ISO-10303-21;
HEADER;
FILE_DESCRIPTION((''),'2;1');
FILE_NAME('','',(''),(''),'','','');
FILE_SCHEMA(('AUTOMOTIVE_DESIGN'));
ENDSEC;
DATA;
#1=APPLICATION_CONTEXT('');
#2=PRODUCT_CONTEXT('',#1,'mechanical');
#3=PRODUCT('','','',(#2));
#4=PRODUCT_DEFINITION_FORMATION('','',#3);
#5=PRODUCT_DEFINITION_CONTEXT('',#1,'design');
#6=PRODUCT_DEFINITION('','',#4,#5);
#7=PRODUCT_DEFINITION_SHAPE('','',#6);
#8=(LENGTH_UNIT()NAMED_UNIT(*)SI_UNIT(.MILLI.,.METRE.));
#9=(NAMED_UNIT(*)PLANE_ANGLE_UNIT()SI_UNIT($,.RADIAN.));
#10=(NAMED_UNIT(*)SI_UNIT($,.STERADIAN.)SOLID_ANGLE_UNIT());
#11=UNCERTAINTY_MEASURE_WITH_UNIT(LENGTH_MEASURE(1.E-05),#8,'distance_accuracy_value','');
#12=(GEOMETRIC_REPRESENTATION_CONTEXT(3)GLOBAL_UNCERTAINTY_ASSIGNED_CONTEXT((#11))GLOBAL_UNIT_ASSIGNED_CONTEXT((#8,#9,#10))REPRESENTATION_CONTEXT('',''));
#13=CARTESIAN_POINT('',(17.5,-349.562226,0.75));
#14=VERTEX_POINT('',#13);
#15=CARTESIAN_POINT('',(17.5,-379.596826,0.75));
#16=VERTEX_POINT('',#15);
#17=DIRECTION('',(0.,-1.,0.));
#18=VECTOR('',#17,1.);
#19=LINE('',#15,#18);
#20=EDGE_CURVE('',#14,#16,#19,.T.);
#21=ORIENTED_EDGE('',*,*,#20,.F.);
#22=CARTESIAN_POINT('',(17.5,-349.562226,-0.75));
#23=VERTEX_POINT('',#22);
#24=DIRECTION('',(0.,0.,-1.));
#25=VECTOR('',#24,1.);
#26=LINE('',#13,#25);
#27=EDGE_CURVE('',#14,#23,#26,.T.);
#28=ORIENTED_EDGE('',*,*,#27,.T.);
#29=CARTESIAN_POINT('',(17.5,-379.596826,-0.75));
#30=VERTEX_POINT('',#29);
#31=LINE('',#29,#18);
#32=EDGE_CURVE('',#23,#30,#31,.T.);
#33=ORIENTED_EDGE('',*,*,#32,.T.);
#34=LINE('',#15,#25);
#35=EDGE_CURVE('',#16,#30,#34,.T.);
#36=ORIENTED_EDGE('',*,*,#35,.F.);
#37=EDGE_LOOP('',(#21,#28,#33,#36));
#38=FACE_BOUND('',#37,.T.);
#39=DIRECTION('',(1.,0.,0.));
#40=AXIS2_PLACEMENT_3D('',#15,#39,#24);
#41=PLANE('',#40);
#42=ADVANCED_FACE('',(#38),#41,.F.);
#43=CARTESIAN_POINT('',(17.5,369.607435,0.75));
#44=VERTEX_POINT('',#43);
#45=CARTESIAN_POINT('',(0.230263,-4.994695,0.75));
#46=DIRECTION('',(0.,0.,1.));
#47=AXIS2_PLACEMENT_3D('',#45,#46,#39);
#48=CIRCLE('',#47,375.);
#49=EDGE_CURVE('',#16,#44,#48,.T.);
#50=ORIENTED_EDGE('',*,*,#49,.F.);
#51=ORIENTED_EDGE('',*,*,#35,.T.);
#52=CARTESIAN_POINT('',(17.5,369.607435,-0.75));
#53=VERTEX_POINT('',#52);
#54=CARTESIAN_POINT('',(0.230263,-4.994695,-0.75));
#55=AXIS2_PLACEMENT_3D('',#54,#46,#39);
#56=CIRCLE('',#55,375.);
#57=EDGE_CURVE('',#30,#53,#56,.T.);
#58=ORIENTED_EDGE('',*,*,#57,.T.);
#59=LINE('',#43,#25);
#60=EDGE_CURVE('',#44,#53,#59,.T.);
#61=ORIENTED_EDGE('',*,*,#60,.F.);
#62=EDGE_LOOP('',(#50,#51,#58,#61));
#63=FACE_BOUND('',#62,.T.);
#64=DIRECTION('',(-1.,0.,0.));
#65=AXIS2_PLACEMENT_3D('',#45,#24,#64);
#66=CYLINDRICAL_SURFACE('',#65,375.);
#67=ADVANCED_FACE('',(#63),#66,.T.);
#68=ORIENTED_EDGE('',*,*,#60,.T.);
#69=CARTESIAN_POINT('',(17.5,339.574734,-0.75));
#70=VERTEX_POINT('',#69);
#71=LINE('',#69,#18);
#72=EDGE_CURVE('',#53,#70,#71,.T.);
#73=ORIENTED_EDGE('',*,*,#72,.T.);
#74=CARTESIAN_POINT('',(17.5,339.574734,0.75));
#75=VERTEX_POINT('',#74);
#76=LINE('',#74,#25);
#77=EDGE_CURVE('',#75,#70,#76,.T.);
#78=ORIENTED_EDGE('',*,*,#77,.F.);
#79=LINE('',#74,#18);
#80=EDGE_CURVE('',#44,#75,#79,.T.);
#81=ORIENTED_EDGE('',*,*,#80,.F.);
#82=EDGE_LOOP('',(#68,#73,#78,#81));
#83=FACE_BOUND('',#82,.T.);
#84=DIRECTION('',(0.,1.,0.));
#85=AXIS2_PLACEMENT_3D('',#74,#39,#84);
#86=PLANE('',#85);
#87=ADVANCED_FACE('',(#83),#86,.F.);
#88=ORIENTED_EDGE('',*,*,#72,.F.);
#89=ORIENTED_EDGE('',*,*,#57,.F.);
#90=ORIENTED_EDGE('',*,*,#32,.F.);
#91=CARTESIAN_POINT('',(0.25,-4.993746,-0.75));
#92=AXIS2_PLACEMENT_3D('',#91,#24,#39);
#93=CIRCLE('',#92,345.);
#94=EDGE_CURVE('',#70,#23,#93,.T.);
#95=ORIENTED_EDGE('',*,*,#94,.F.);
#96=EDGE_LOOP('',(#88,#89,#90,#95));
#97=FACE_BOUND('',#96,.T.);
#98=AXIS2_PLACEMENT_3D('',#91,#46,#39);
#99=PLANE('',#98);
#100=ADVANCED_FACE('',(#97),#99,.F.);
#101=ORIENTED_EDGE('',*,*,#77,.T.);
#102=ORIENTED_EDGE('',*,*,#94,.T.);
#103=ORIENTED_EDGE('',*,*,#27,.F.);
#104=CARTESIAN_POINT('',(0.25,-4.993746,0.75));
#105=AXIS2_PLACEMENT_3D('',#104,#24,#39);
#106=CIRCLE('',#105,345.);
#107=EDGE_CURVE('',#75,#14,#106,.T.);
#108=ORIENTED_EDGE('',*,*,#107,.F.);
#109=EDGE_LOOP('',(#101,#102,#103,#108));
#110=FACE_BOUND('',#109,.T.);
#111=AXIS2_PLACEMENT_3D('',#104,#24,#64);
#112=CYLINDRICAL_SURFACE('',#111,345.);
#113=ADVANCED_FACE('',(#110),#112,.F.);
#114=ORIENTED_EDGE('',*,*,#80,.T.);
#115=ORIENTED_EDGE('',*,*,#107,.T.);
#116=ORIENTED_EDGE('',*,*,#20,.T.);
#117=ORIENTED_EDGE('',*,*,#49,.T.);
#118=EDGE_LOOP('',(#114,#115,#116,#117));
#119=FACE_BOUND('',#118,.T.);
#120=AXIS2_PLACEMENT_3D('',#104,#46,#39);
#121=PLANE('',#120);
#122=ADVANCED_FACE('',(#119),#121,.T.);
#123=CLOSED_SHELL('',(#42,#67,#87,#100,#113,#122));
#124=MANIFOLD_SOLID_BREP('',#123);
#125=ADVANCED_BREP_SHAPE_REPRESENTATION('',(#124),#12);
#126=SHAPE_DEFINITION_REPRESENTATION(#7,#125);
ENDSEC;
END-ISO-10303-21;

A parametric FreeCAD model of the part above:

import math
import FreeCAD as App
import Part
import Sketcher

V = App.Vector
Q = App.Units.Quantity

doc = App.newDocument("Part")
body = doc.addObject("PartDesign::Body", "Body")

sketch1 = body.newObject("Sketcher::SketchObject", "Sketch")
sketch1.AttachmentSupport = (doc.getObject("XY_Plane"), [""])
sketch1.MapMode = "FlatFace"
sketch1.addGeometry(Part.LineSegment(V(18, 370, 0), V(18, 340, 0)), False)
sketch1.addGeometry(Part.ArcOfCircle(Part.Circle(V(0, -5, 0), V(0, 0, 1), 345), math.radians(-87), math.radians(87)), False)
sketch1.addGeometry(Part.LineSegment(V(18, -350, 0), V(18, -380, 0)), False)
sketch1.addGeometry(Part.ArcOfCircle(Part.Circle(V(0, -5, 0), V(0, 0, 1), 375), math.radians(-87), math.radians(87)), False)
sketch1.addConstraint(Sketcher.Constraint("Coincident", 0, 2, 1, 2))
sketch1.addConstraint(Sketcher.Constraint("Coincident", 1, 1, 2, 1))
sketch1.addConstraint(Sketcher.Constraint("Coincident", 2, 2, 3, 1))
sketch1.addConstraint(Sketcher.Constraint("Coincident", 3, 2, 0, 1))
sketch1.addConstraint(Sketcher.Constraint("Vertical", 0))
sketch1.addConstraint(Sketcher.Constraint("Vertical", 2))
sketch1.addConstraint(Sketcher.Constraint("Vertical", 0, 2, 1, 1))
sketch1.addConstraint(Sketcher.Constraint("Radius", 1, Q("345 mm")))
sketch1.addConstraint(Sketcher.Constraint("Radius", 3, Q("375 mm")))
sketch1.addConstraint(Sketcher.Constraint("DistanceX", -1, 1, 0, 2, Q("17.5 mm")))
sketch1.addConstraint(Sketcher.Constraint("DistanceX", -1, 1, 1, 3, Q("0.25 mm")))
sketch1.addConstraint(Sketcher.Constraint("DistanceY", 0, 2, 0, 1, Q("30.032701 mm")))
sketch1.addConstraint(Sketcher.Constraint("DistanceY", 2, 2, 2, 1, Q("30.034599 mm")))
sketch1.addConstraint(Sketcher.Constraint("DistanceY", 1, 3, -1, 1, Q("4.993746 mm")))
pad1 = body.newObject("PartDesign::Pad", "Pad")
pad1.Profile = sketch1
pad1.Length = 1.5
pad1.Midplane = True

doc.recompute()
